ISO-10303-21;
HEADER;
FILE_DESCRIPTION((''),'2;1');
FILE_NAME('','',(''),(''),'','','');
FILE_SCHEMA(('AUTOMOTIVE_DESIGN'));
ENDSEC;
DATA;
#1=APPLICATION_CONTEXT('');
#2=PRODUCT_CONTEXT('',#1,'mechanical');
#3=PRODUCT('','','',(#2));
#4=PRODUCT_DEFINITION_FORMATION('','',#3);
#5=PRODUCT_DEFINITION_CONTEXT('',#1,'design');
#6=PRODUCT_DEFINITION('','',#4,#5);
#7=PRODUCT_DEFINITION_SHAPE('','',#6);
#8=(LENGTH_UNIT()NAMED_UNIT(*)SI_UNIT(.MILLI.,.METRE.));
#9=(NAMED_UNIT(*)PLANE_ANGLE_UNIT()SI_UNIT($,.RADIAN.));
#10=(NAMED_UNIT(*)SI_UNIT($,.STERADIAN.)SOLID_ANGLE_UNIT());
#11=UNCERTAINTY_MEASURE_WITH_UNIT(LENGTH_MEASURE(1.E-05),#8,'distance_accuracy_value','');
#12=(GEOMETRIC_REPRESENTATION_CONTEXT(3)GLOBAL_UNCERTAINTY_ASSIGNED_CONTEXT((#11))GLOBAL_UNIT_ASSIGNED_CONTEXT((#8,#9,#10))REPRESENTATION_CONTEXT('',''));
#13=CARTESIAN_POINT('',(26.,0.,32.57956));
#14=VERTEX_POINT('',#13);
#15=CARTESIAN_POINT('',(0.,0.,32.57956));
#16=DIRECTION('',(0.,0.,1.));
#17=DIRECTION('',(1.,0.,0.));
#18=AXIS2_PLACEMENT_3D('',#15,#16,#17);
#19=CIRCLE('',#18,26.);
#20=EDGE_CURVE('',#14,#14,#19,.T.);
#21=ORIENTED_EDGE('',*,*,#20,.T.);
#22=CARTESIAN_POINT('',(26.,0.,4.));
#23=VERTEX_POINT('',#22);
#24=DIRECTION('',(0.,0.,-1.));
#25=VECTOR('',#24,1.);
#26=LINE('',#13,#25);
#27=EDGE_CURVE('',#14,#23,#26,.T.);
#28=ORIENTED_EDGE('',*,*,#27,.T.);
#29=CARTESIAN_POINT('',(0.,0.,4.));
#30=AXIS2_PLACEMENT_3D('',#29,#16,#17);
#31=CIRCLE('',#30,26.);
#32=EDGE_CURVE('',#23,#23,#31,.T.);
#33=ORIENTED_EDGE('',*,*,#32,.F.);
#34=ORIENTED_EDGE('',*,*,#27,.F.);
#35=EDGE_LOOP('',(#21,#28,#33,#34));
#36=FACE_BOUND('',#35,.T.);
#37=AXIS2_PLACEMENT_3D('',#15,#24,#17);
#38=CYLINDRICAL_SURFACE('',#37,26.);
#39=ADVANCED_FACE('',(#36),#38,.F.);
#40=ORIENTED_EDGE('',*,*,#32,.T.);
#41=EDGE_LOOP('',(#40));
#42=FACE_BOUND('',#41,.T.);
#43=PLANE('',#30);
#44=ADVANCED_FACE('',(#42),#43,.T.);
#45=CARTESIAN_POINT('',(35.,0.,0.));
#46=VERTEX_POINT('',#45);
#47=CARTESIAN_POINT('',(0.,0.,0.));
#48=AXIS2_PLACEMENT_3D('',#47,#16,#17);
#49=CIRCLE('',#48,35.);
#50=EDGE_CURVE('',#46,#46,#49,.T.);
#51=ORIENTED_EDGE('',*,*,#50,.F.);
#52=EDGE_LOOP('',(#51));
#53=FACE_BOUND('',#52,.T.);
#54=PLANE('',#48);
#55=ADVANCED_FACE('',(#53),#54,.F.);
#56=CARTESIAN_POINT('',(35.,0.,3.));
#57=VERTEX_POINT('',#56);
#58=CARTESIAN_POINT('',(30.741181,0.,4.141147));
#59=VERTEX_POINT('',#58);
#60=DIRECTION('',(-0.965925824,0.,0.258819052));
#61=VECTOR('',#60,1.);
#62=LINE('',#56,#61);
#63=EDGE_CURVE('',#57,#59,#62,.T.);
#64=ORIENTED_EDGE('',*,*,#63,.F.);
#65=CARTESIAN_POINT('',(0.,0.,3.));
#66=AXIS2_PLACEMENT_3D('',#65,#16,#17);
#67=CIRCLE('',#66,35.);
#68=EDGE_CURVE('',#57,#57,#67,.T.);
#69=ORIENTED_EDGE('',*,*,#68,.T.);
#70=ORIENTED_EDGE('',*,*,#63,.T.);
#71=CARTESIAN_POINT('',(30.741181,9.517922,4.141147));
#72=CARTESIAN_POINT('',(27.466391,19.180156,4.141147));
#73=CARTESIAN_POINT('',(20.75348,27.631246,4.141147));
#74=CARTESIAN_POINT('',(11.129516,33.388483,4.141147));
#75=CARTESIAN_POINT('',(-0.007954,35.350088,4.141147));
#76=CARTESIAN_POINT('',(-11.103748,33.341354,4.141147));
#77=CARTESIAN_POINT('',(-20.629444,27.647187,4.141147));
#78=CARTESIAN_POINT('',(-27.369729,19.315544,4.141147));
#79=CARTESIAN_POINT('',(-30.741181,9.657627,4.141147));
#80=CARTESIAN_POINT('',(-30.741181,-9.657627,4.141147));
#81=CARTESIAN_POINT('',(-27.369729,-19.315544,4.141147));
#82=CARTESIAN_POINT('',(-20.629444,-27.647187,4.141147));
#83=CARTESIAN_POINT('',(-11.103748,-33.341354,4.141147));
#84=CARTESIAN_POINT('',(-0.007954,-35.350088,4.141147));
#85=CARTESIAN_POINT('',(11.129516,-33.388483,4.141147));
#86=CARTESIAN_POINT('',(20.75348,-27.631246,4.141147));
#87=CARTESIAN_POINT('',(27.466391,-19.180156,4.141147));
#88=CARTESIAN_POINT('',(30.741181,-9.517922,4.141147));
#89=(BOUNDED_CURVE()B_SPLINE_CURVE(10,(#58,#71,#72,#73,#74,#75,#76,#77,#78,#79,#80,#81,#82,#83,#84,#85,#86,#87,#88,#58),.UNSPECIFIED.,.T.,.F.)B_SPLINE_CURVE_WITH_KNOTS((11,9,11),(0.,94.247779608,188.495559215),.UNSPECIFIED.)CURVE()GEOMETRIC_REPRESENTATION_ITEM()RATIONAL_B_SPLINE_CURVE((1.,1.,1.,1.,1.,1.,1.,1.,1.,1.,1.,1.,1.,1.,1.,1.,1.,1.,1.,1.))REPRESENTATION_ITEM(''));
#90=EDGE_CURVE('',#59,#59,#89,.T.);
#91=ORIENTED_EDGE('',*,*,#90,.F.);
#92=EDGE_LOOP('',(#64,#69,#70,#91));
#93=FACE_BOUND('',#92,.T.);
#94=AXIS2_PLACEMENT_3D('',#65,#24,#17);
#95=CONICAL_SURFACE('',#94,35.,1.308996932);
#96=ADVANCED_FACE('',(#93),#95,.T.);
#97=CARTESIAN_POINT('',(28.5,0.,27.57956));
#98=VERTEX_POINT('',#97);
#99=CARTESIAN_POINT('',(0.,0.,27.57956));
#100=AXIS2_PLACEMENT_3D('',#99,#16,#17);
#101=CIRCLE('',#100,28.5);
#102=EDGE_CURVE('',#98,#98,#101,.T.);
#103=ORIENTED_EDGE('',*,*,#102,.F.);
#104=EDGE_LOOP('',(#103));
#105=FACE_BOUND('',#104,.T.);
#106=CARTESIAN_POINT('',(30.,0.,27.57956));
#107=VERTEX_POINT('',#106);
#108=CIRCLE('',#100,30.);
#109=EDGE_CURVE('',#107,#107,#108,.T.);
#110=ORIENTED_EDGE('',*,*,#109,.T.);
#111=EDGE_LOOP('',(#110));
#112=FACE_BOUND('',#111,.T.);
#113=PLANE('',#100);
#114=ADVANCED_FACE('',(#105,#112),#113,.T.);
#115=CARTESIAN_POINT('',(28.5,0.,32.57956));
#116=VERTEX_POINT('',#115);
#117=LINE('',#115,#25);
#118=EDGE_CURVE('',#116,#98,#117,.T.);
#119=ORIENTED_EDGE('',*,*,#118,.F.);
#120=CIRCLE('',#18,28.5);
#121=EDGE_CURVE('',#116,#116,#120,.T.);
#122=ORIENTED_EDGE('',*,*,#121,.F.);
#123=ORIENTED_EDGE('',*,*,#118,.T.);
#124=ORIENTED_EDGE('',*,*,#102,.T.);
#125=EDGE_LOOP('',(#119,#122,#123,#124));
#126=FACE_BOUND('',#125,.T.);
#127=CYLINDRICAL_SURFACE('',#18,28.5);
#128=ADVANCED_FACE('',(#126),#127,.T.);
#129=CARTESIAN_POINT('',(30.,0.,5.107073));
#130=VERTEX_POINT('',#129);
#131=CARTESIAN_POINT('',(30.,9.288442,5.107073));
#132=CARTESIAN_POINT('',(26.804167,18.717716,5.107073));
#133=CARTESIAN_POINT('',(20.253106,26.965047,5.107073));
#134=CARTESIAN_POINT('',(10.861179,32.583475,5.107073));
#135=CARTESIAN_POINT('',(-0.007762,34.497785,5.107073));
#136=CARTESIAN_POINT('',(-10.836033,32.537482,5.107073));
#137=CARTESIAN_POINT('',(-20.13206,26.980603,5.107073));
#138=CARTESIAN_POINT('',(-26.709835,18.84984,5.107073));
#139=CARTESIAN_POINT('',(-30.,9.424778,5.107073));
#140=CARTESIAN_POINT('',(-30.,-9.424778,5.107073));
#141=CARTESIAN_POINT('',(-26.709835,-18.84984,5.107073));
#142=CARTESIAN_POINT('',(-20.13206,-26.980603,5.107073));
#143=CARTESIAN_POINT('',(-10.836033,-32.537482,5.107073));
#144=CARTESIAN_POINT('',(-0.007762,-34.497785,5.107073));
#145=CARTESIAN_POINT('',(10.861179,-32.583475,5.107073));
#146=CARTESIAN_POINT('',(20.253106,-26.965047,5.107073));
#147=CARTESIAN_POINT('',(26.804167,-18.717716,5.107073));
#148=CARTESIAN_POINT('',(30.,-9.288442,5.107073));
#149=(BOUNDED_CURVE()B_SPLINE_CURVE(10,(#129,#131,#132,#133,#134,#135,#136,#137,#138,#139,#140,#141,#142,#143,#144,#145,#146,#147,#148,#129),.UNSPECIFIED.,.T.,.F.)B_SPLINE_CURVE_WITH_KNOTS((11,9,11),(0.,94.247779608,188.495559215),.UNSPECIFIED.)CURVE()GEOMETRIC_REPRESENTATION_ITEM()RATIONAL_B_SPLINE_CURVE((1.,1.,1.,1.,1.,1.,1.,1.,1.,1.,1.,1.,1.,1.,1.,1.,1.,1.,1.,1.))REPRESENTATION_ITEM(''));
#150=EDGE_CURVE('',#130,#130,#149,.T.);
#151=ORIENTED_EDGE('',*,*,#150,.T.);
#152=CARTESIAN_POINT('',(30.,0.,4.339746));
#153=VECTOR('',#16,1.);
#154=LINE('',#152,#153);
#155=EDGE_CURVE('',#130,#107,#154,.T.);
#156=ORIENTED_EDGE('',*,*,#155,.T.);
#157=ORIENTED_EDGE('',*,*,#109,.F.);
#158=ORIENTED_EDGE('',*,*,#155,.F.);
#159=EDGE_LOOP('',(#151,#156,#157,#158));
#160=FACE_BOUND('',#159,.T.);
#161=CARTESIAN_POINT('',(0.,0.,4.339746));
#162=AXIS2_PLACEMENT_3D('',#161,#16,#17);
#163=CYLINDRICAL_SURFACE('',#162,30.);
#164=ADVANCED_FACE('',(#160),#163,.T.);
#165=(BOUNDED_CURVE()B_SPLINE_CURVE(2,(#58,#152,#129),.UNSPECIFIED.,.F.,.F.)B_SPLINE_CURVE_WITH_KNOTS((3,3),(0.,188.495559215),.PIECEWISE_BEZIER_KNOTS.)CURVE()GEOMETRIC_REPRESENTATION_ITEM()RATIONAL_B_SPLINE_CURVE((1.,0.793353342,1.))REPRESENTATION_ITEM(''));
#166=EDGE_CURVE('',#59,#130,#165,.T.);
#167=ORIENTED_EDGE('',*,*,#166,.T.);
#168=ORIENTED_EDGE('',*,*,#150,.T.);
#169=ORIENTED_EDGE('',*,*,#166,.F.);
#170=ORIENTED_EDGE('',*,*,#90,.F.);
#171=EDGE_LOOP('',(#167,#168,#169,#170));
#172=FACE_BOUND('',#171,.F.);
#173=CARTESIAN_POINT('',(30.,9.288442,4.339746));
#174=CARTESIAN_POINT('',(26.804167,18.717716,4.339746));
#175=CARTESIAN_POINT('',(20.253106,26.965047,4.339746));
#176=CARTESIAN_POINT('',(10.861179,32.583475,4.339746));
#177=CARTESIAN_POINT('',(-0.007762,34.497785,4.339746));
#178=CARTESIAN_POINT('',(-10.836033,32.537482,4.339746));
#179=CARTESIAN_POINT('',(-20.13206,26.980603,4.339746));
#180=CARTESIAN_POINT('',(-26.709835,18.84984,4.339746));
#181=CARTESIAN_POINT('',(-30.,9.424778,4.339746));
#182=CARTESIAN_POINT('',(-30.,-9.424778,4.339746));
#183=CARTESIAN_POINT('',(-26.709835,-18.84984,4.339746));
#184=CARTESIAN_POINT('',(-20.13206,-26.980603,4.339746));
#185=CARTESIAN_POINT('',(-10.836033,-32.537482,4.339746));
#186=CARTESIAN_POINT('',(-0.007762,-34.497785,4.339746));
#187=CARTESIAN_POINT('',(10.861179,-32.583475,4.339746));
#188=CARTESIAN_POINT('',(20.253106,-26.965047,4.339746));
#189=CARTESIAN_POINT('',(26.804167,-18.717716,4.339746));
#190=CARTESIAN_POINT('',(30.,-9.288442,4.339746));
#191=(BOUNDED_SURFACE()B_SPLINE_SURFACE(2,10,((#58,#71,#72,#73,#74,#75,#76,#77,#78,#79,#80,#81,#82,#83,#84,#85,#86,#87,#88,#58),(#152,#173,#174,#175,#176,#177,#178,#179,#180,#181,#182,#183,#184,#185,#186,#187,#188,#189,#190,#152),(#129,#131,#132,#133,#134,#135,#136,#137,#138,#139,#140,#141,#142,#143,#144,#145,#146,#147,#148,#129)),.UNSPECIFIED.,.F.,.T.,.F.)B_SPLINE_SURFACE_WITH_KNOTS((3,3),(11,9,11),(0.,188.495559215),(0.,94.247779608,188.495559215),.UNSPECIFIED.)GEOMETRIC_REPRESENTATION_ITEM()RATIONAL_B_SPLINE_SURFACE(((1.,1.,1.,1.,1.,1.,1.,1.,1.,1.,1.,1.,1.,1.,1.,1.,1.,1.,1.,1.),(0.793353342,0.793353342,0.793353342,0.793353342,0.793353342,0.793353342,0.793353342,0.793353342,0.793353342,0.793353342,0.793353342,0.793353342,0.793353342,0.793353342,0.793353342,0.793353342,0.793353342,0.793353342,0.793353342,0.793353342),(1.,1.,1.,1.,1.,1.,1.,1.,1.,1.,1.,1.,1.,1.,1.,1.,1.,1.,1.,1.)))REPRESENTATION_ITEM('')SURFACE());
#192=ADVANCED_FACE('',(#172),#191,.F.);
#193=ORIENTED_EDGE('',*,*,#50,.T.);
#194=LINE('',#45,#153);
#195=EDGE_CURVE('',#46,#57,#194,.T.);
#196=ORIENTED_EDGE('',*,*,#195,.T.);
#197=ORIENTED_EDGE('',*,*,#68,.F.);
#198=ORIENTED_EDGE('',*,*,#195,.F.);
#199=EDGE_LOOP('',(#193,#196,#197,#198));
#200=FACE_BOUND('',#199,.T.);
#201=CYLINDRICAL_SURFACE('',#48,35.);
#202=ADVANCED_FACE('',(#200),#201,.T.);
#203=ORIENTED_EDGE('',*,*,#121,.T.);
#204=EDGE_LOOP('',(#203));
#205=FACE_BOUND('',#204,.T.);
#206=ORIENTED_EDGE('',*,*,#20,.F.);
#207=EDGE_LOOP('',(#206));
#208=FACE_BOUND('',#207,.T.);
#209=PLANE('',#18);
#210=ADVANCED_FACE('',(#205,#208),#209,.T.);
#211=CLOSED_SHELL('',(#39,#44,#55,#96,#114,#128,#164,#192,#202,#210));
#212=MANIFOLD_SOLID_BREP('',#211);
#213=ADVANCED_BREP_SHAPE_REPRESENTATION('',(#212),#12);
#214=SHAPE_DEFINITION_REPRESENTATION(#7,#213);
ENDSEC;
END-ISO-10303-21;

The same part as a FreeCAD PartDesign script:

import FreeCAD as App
import Part
import Sketcher
Q = App.Units.Quantity


def edges_at(feature, points):
    """Names of the edges that pass closest to the given points."""
    edges = feature.Shape.Edges
    near = lambda p: min(range(len(edges)), key=lambda i: edges[i].distToShape(Part.Vertex(*p))[0])
    return sorted({f"Edge{near(p) + 1}" for p in points})

doc = App.newDocument("Part")
params = doc.addObject("Spreadsheet::Sheet", "Params")
for row, (alias, value) in enumerate([
    ("sketch1_width", "35 mm"),
    ("sketch1_width2", "4 mm"),
    ("sketch1_width3", "26 mm"),
    ("sketch1_height", "3 mm"),
    ("revolution_angle", "360 deg"),
    ("sketch2_diameter", "60 mm"),
    ("sketch2_diameter2", "57 mm"),
    ("pocket1_length", "5 mm"),
    ("fillet_radius", "1 mm"),
], start=1):
    params.set(f"A{row}", alias)
    params.set(f"B{row}", "=" + value)
    params.setAlias(f"B{row}", alias)

body = doc.addObject("PartDesign::Body", "Body")

# Sketch on XZ plane
sketch1 = body.newObject("Sketcher::SketchObject", "Sketch")
sketch1.AttachmentSupport = (doc.getObject("XZ_Plane"), [""])
sketch1.MapMode = "FlatFace"
sketch1.addGeometry([
    Part.LineSegment(App.Vector(0, 4, 0), App.Vector(0, 0, 0)),  # 0
    Part.LineSegment(App.Vector(0, 0, 0), App.Vector(35, 0, 0)),  # 1
    Part.LineSegment(App.Vector(35, 0, 0), App.Vector(35, 3, 0)),  # 2
    Part.LineSegment(App.Vector(35, 3, 0), App.Vector(30, 4.3, 0)),  # 3
    Part.LineSegment(App.Vector(30, 4.3, 0), App.Vector(30, 32.6, 0)),  # 4
    Part.LineSegment(App.Vector(30, 32.6, 0), App.Vector(26, 32.6, 0)),  # 5
    Part.LineSegment(App.Vector(26, 32.6, 0), App.Vector(26, 4, 0)),  # 6
    Part.LineSegment(App.Vector(26, 4, 0), App.Vector(0, 4, 0)),  # 7
], False)
sketch1.addConstraint([
    Sketcher.Constraint("Coincident", 0, 2, 1, 1),
    Sketcher.Constraint("Coincident", 1, 2, 2, 1),
    Sketcher.Constraint("Coincident", 2, 2, 3, 1),
    Sketcher.Constraint("Coincident", 3, 2, 4, 1),
    Sketcher.Constraint("Coincident", 4, 2, 5, 1),
    Sketcher.Constraint("Coincident", 5, 2, 6, 1),
    Sketcher.Constraint("Coincident", 6, 2, 7, 1),
    Sketcher.Constraint("Coincident", 7, 2, 0, 1),
    Sketcher.Constraint("Vertical", 0),
    Sketcher.Constraint("Horizontal", 1),
    Sketcher.Constraint("Vertical", 2),
    Sketcher.Constraint("Vertical", 4),
    Sketcher.Constraint("Horizontal", 5),
    Sketcher.Constraint("Vertical", 6),
    Sketcher.Constraint("Horizontal", 7),
    Sketcher.Constraint("Coincident", 0, 2, -1, 1),
    Sketcher.Constraint("Equal", 5, 0),
    Sketcher.Constraint("DistanceX", 1, 1, 1, 2, Q("35 mm")),
    Sketcher.Constraint("DistanceX", 5, 2, 5, 1, Q("4 mm")),
    Sketcher.Constraint("DistanceX", 7, 2, 7, 1, Q("26 mm")),
    Sketcher.Constraint("DistanceY", 2, 1, 2, 2, Q("3 mm")),
    Sketcher.Constraint("Angle", 3, Q("165 deg")),
    Sketcher.Constraint("DistanceY", 6, 2, 6, 1, Q("28.57956 mm")),
])
sketch1.setExpression("Constraints[17]", "Params.sketch1_width")
sketch1.setExpression("Constraints[18]", "Params.sketch1_width2")
sketch1.setExpression("Constraints[19]", "Params.sketch1_width3")
sketch1.setExpression("Constraints[20]", "Params.sketch1_height")
revolution = body.newObject("PartDesign::Revolution", "Revolution")
revolution.Profile = sketch1
revolution.ReferenceAxis = (sketch1, ["V_Axis"])
revolution.setExpression("Angle", "Params.revolution_angle")

# Sketch on XY plane
sketch2 = body.newObject("Sketcher::SketchObject", "Sketch001")
sketch2.AttachmentSupport = (doc.getObject("XY_Plane"), [""])
sketch2.MapMode = "FlatFace"
sketch2.AttachmentOffset = App.Placement(App.Vector(0, 0, 32.57956), App.Rotation())
sketch2.addGeometry([
    Part.Circle(App.Vector(0, 0, 0), App.Vector(0, 0, 1), 30),
    Part.Circle(App.Vector(0, 0, 0), App.Vector(0, 0, 1), 28),
], False)
sketch2.addConstraint([
    Sketcher.Constraint("Coincident", 0, 3, -1, 1),
    Sketcher.Constraint("Coincident", 1, 3, -1, 1),
    Sketcher.Constraint("Diameter", 0, Q("60 mm")),
    Sketcher.Constraint("Diameter", 1, Q("57 mm")),
])
sketch2.setExpression("Constraints[2]", "Params.sketch2_diameter")
sketch2.setExpression("Constraints[3]", "Params.sketch2_diameter2")
pocket1 = body.newObject("PartDesign::Pocket", "Pocket")
pocket1.Profile = sketch2
pocket1.setExpression("Length", "Params.pocket1_length")
doc.recompute()

fillet = body.newObject("PartDesign::Fillet", "Fillet")
fillet.Base = (pocket1, edges_at(pocket1, [(-30, 0, 4.34)]))
fillet.setExpression("Radius", "Params.fillet_radius")

doc.recompute()
